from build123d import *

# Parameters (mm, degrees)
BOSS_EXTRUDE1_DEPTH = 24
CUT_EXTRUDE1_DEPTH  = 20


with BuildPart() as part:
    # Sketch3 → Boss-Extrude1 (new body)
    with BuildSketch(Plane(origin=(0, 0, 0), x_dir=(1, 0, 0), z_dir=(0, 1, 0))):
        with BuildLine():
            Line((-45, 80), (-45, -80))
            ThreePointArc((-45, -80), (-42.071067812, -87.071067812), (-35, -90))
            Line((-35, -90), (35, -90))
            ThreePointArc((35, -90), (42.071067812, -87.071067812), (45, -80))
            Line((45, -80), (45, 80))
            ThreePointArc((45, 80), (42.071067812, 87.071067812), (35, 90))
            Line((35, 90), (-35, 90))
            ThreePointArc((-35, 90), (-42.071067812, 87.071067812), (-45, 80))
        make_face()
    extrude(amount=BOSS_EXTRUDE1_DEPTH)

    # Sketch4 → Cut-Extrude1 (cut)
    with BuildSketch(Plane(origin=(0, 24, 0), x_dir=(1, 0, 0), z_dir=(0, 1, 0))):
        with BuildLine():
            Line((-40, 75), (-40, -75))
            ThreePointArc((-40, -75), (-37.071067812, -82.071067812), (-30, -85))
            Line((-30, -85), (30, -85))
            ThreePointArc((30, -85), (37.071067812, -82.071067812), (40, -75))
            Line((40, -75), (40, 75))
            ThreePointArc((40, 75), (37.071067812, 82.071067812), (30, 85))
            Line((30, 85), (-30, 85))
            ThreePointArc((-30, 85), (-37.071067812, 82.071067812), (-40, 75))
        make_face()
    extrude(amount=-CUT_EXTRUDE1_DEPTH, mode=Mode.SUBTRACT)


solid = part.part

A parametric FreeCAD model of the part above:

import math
import FreeCAD as App
import Part
import Sketcher

doc = App.newDocument("Part")
body = doc.addObject("PartDesign::Body", "Body")

# Sketch on XZ plane
sketch1 = doc.addObject("Sketcher::SketchObject", "Sketch")
body.addObject(sketch1)
sketch1.AttachmentSupport = (doc.XZ_Plane, [""])
sketch1.MapMode = "FlatFace"
sketch1.addGeometry(Part.LineSegment(App.Vector(-45, -80, 0), App.Vector(-45, 80, 0)), False)
sketch1.addGeometry(Part.ArcOfCircle(Part.Circle(App.Vector(-35, 80, 0), App.Vector(0, 0, 1), 10), math.radians(90), math.radians(180)), False)
sketch1.addGeometry(Part.LineSegment(App.Vector(-35, 90, 0), App.Vector(35, 90, 0)), False)
sketch1.addGeometry(Part.ArcOfCircle(Part.Circle(App.Vector(35, 80, 0), App.Vector(0, 0, 1), 10), math.radians(0), math.radians(90)), False)
sketch1.addGeometry(Part.LineSegment(App.Vector(45, 80, 0), App.Vector(45, -80, 0)), False)
sketch1.addGeometry(Part.ArcOfCircle(Part.Circle(App.Vector(35, -80, 0), App.Vector(0, 0, 1), 10), math.radians(-90), math.radians(0)), False)
sketch1.addGeometry(Part.LineSegment(App.Vector(35, -90, 0), App.Vector(-35, -90, 0)), False)
sketch1.addGeometry(Part.ArcOfCircle(Part.Circle(App.Vector(-35, -80, 0), App.Vector(0, 0, 1), 10), math.radians(180), math.radians(270)), False)
sketch1.addConstraint(Sketcher.Constraint("Tangent", 0, 2, 1, 2))
sketch1.addConstraint(Sketcher.Constraint("Tangent", 1, 1, 2, 1))
sketch1.addConstraint(Sketcher.Constraint("Tangent", 2, 2, 3, 2))
sketch1.addConstraint(Sketcher.Constraint("Tangent", 3, 1, 4, 1))
sketch1.addConstraint(Sketcher.Constraint("Tangent", 4, 2, 5, 2))
sketch1.addConstraint(Sketcher.Constraint("Tangent", 5, 1, 6, 1))
sketch1.addConstraint(Sketcher.Constraint("Tangent", 6, 2, 7, 2))
sketch1.addConstraint(Sketcher.Constraint("Tangent", 7, 1, 0, 1))
sketch1.addConstraint(Sketcher.Constraint("Vertical", 0))
sketch1.addConstraint(Sketcher.Constraint("Horizontal", 2))
sketch1.addConstraint(Sketcher.Constraint("Vertical", 4))
sketch1.addConstraint(Sketcher.Constraint("Horizontal", 6))
sketch1.addConstraint(Sketcher.Constraint("Equal", 1, 3))
sketch1.addConstraint(Sketcher.Constraint("Equal", 3, 5))
sketch1.addConstraint(Sketcher.Constraint("Equal", 5, 7))
sketch1.addConstraint(Sketcher.Constraint("Symmetric", 1, 3, 5, 3, -1, 1))
sketch1.addConstraint(Sketcher.Constraint("Radius", 1, 10.0))
sketch1.addConstraint(Sketcher.Constraint("DistanceX", 2, 1, 2, 2, 70.0))
sketch1.addConstraint(Sketcher.Constraint("DistanceY", 0, 1, 0, 2, 160.0))
pad1 = doc.addObject("PartDesign::Pad", "Pad")
body.addObject(pad1)
pad1.Profile = sketch1
pad1.Length = 24
pad1.Reversed = True

# Sketch on XZ plane
sketch2 = doc.addObject("Sketcher::SketchObject", "Sketch001")
body.addObject(sketch2)
sketch2.AttachmentSupport = (doc.XZ_Plane, [""])
sketch2.MapMode = "FlatFace"
sketch2.AttachmentOffset = App.Placement(App.Vector(0, 0, -24), App.Rotation())
sketch2.addGeometry(Part.LineSegment(App.Vector(-40, -75, 0), App.Vector(-40, 75, 0)), False)
sketch2.addGeometry(Part.ArcOfCircle(Part.Circle(App.Vector(-30, 75, 0), App.Vector(0, 0, 1), 10), math.radians(90), math.radians(180)), False)
sketch2.addGeometry(Part.LineSegment(App.Vector(-30, 85, 0), App.Vector(30, 85, 0)), False)
sketch2.addGeometry(Part.ArcOfCircle(Part.Circle(App.Vector(30, 75, 0), App.Vector(0, 0, 1), 10), math.radians(0), math.radians(90)), False)
sketch2.addGeometry(Part.LineSegment(App.Vector(40, 75, 0), App.Vector(40, -75, 0)), False)
sketch2.addGeometry(Part.ArcOfCircle(Part.Circle(App.Vector(30, -75, 0), App.Vector(0, 0, 1), 10), math.radians(-90), math.radians(0)), False)
sketch2.addGeometry(Part.LineSegment(App.Vector(30, -85, 0), App.Vector(-30, -85, 0)), False)
sketch2.addGeometry(Part.ArcOfCircle(Part.Circle(App.Vector(-30, -75, 0), App.Vector(0, 0, 1), 10), math.radians(180), math.radians(270)), False)
sketch2.addConstraint(Sketcher.Constraint("Tangent", 0, 2, 1, 2))
sketch2.addConstraint(Sketcher.Constraint("Tangent", 1, 1, 2, 1))
sketch2.addConstraint(Sketcher.Constraint("Tangent", 2, 2, 3, 2))
sketch2.addConstraint(Sketcher.Constraint("Tangent", 3, 1, 4, 1))
sketch2.addConstraint(Sketcher.Constraint("Tangent", 4, 2, 5, 2))
sketch2.addConstraint(Sketcher.Constraint("Tangent", 5, 1, 6, 1))
sketch2.addConstraint(Sketcher.Constraint("Tangent", 6, 2, 7, 2))
sketch2.addConstraint(Sketcher.Constraint("Tangent", 7, 1, 0, 1))
sketch2.addConstraint(Sketcher.Constraint("Vertical", 0))
sketch2.addConstraint(Sketcher.Constraint("Horizontal", 2))
sketch2.addConstraint(Sketcher.Constraint("Vertical", 4))
sketch2.addConstraint(Sketcher.Constraint("Horizontal", 6))
sketch2.addConstraint(Sketcher.Constraint("Equal", 1, 3))
sketch2.addConstraint(Sketcher.Constraint("Equal", 3, 5))
sketch2.addConstraint(Sketcher.Constraint("Equal", 5, 7))
sketch2.addConstraint(Sketcher.Constraint("Symmetric", 1, 3, 5, 3, -1, 1))
sketch2.addConstraint(Sketcher.Constraint("Radius", 1, 10.0))
sketch2.addConstraint(Sketcher.Constraint("DistanceX", 2, 1, 2, 2, 60.0))
sketch2.addConstraint(Sketcher.Constraint("DistanceY", 0, 1, 0, 2, 150.0))
pocket1 = doc.addObject("PartDesign::Pocket", "Pocket")
body.addObject(pocket1)
pocket1.Profile = sketch2
pocket1.Length = 20
pocket1.Reversed = True

doc.recompute()
